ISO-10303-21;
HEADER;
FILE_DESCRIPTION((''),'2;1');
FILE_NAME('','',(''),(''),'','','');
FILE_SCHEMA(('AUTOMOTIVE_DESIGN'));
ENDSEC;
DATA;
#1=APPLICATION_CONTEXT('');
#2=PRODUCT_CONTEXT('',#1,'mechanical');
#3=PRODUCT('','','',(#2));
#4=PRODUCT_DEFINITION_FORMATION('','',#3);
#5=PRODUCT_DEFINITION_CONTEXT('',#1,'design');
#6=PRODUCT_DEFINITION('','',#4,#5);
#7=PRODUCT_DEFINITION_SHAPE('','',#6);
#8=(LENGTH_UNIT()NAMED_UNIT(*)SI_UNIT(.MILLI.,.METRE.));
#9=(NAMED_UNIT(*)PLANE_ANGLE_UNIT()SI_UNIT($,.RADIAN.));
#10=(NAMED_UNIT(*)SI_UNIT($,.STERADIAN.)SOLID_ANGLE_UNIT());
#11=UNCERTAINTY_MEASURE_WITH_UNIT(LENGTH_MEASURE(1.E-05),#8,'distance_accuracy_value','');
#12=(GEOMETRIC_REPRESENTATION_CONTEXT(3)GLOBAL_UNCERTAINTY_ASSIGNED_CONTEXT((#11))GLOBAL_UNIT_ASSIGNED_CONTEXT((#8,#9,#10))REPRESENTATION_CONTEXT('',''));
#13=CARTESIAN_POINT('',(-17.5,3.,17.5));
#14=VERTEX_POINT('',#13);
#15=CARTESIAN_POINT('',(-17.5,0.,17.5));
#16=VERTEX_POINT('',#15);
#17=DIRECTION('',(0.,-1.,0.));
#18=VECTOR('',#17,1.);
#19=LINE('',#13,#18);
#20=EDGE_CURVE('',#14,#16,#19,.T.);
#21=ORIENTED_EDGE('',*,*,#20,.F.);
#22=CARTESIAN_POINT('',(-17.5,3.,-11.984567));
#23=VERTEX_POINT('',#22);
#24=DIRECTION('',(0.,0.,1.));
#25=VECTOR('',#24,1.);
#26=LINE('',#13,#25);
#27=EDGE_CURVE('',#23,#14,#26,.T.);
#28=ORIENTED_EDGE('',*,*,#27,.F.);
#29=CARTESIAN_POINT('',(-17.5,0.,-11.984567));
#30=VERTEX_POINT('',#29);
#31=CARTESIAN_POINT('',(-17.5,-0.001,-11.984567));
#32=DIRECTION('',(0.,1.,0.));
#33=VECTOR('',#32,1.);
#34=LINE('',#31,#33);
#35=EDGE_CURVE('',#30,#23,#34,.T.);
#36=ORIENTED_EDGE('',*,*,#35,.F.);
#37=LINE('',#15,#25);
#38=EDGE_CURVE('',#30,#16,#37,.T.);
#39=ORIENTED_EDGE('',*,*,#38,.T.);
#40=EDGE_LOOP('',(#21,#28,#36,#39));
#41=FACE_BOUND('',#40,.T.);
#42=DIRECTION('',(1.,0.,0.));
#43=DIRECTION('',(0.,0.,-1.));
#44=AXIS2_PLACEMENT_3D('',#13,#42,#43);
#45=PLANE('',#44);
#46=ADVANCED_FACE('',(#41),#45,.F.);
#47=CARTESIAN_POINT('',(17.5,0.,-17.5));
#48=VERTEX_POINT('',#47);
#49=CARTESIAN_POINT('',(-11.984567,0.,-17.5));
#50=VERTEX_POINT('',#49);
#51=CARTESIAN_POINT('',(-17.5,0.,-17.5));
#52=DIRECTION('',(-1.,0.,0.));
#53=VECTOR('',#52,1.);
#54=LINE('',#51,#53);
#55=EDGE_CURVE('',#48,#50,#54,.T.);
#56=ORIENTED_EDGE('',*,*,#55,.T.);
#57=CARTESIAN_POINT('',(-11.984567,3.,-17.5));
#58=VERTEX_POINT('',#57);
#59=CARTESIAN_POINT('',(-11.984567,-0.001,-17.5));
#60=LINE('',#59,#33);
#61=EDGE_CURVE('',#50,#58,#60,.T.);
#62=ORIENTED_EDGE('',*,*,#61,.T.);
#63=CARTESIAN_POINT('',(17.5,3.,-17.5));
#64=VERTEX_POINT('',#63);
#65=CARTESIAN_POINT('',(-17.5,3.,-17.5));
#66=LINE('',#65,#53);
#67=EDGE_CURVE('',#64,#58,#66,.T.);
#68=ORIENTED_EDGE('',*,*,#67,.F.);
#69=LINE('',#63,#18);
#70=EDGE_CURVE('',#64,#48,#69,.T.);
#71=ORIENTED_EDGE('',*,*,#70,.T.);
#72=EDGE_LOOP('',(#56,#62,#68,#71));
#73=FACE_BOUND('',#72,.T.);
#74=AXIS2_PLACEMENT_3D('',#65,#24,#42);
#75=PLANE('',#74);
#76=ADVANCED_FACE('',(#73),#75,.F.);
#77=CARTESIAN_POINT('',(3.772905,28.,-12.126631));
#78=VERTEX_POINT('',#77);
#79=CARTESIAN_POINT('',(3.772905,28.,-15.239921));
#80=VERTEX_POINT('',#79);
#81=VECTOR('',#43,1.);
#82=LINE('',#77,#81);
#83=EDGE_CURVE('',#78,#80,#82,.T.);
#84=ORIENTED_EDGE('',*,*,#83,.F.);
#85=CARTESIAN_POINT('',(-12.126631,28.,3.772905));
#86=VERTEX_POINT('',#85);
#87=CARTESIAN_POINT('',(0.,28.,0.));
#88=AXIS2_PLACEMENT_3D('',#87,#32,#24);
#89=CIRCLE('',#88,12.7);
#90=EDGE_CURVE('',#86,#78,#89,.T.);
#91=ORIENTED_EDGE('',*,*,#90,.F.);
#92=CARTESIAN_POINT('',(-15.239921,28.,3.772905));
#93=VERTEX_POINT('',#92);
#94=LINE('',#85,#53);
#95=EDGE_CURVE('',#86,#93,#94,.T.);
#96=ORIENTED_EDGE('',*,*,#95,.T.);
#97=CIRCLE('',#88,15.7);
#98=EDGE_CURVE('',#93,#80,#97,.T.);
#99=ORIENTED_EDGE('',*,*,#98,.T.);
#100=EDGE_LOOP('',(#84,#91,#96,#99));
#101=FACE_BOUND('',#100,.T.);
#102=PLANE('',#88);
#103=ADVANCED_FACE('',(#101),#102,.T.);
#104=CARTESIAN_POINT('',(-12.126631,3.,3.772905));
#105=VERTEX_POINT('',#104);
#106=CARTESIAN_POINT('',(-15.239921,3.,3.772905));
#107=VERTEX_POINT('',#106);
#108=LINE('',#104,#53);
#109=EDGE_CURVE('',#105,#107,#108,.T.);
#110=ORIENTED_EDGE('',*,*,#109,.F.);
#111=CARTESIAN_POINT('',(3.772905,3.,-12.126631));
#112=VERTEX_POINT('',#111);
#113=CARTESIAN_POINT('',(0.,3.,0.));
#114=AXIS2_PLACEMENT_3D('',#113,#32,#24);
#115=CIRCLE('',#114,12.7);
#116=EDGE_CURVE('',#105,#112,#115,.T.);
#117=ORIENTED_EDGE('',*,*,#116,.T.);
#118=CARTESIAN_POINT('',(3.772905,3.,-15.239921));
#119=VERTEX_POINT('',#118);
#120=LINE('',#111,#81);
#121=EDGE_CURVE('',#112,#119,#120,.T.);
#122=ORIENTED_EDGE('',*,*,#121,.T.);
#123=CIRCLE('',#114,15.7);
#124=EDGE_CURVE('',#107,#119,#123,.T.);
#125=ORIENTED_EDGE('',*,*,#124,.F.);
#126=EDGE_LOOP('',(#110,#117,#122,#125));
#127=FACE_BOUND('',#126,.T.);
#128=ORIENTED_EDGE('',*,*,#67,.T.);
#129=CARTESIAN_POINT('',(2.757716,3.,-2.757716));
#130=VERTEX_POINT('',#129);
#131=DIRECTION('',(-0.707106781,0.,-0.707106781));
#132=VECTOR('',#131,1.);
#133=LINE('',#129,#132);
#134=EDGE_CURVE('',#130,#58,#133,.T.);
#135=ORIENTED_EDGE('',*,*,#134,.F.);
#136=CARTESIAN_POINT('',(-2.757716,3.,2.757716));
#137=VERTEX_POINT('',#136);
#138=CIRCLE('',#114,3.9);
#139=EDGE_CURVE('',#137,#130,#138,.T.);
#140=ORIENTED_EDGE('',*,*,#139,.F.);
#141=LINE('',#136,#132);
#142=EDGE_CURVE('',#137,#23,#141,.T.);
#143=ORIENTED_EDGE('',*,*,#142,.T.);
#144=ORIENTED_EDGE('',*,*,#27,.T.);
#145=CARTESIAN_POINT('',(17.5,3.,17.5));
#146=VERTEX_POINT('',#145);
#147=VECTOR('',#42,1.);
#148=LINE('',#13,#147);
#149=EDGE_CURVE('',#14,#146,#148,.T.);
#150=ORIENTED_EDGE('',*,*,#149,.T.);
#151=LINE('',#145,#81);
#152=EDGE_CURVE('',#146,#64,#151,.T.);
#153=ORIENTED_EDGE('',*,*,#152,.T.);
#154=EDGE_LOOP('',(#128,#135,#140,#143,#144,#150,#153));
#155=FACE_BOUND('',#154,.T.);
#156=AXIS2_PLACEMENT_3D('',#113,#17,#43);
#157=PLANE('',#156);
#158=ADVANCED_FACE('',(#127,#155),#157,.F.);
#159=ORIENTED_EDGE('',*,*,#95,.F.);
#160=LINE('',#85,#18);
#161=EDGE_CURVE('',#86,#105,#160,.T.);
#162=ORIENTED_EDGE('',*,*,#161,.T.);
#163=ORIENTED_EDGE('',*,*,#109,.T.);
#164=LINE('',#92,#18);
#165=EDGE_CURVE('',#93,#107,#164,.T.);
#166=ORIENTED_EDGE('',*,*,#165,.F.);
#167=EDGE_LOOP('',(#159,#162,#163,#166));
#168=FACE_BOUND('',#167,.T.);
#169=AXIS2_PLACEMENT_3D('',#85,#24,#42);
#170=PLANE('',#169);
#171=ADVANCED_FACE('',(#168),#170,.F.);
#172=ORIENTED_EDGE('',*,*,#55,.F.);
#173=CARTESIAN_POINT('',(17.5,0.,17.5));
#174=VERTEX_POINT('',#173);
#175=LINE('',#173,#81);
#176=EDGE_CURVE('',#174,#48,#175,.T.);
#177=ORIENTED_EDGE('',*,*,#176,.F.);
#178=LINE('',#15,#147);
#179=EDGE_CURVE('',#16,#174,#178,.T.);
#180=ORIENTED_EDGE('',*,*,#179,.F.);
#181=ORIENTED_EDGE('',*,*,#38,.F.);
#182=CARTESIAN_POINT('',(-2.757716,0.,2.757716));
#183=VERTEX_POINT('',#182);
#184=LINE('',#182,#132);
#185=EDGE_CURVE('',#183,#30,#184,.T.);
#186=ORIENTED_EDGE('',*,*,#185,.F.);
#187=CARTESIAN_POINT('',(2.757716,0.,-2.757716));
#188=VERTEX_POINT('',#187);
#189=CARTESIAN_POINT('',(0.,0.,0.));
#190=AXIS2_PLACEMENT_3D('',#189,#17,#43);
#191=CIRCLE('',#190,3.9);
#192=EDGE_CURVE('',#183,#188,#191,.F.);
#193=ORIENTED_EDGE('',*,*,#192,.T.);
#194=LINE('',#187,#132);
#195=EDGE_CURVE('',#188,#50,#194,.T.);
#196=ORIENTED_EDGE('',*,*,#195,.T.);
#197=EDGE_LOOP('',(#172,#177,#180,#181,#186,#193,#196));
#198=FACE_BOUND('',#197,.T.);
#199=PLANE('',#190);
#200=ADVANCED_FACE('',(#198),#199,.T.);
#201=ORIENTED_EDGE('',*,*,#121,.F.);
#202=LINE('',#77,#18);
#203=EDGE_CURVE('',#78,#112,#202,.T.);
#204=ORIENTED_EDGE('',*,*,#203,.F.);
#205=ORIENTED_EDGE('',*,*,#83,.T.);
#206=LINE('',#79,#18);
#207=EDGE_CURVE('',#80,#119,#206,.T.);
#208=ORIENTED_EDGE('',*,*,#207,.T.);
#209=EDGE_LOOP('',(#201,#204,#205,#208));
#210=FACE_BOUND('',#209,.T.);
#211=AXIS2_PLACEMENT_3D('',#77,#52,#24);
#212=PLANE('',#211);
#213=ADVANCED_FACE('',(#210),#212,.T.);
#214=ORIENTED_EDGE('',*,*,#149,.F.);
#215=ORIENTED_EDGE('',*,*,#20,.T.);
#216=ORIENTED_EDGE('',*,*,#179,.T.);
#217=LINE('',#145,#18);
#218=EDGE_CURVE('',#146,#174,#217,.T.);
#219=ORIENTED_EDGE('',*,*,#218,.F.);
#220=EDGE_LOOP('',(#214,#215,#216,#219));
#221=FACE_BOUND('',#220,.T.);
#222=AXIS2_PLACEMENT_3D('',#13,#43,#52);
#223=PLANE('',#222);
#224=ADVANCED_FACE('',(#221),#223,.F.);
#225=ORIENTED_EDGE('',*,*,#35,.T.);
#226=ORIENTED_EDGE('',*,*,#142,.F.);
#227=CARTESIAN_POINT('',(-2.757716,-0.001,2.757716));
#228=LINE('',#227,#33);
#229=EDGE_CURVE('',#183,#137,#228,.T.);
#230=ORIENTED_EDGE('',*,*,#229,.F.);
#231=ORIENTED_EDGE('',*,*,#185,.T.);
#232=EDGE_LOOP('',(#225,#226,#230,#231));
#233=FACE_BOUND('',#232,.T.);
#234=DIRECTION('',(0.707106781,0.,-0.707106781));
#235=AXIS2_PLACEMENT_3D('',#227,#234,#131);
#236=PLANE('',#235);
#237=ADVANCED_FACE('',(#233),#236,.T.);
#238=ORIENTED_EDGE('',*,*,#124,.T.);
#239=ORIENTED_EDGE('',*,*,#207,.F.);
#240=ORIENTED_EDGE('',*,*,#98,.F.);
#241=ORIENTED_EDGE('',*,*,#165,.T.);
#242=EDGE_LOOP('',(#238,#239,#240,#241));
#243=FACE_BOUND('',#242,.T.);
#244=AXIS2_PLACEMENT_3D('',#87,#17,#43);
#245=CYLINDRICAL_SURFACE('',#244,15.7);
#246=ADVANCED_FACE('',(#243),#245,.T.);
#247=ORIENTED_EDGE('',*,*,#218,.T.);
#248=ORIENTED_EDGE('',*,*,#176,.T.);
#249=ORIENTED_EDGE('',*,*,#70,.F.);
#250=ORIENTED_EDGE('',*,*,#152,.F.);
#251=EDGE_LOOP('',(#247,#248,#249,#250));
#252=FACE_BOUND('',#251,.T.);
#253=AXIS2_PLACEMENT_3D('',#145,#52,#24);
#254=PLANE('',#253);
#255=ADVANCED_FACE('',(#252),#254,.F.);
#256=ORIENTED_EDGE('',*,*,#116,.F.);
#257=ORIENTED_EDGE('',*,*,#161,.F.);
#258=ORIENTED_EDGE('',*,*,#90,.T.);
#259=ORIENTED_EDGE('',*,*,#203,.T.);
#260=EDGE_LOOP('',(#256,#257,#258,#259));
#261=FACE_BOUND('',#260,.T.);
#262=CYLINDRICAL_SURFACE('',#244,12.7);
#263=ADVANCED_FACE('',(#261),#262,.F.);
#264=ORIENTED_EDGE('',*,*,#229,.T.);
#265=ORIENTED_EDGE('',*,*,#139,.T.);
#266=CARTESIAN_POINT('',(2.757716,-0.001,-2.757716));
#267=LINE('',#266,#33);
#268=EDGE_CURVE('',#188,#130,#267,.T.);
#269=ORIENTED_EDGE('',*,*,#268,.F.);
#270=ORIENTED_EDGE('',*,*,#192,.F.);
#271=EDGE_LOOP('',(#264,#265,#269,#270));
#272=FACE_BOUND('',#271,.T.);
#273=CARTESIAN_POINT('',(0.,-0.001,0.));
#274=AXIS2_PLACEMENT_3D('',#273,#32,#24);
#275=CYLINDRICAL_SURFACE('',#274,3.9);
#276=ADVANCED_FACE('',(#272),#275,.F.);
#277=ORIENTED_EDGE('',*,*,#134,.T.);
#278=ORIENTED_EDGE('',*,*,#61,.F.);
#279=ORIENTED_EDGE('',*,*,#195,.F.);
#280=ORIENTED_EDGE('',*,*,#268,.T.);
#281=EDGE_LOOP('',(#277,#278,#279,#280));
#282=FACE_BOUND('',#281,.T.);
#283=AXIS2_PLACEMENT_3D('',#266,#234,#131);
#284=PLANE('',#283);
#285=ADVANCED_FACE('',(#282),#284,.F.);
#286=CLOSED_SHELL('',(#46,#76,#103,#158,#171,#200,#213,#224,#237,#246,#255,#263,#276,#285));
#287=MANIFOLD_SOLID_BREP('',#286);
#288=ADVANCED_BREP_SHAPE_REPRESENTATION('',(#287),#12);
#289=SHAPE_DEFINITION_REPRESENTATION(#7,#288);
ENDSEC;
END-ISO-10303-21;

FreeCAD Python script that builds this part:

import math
import FreeCAD as App
import Part
import Sketcher
from FreeCAD import Vector

doc = App.newDocument("Part")
body = doc.addObject("PartDesign::Body", "Body")

# Sketch on XZ plane
sketch1 = body.newObject("Sketcher::SketchObject", "Sketch")
sketch1.AttachmentSupport = (doc.getObject("XZ_Plane"), [""])
sketch1.MapMode = "FlatFace"
sketch1.addGeometry(Part.LineSegment(Vector(-17.5, -17.5, 0), Vector(-17.5, 17.5, 0)), False)
sketch1.addGeometry(Part.LineSegment(Vector(-17.5, 17.5, 0), Vector(17.5, 17.5, 0)), False)
sketch1.addGeometry(Part.LineSegment(Vector(17.5, 17.5, 0), Vector(17.5, -17.5, 0)), False)
sketch1.addGeometry(Part.LineSegment(Vector(17.5, -17.5, 0), Vector(-17.5, -17.5, 0)), False)
sketch1.addConstraint(Sketcher.Constraint("Coincident", 0, 2, 1, 1))
sketch1.addConstraint(Sketcher.Constraint("Coincident", 1, 2, 2, 1))
sketch1.addConstraint(Sketcher.Constraint("Coincident", 2, 2, 3, 1))
sketch1.addConstraint(Sketcher.Constraint("Coincident", 3, 2, 0, 1))
sketch1.addConstraint(Sketcher.Constraint("Vertical", 0))
sketch1.addConstraint(Sketcher.Constraint("Horizontal", 1))
sketch1.addConstraint(Sketcher.Constraint("Vertical", 2))
sketch1.addConstraint(Sketcher.Constraint("Horizontal", 3))
sketch1.addConstraint(Sketcher.Constraint("Symmetric", 0, 2, 2, 2, -1, 1))
sketch1.addConstraint(Sketcher.Constraint("Equal", 3, 0))
sketch1.addConstraint(Sketcher.Constraint("DistanceX", 1, 1, 1, 2, 35.0))
pad1 = body.newObject("PartDesign::Pad", "Pad")
pad1.Profile = sketch1
pad1.Length = 3
pad1.Reversed = True

# Sketch on XZ plane
sketch2 = body.newObject("Sketcher::SketchObject", "Sketch001")
sketch2.AttachmentSupport = (doc.getObject("XZ_Plane"), [""])
sketch2.MapMode = "FlatFace"
sketch2.AttachmentOffset = App.Placement(Vector(0, 0, -3), App.Rotation())
sketch2.addGeometry(Part.LineSegment(Vector(3.772905, -15.239921, 0), Vector(3.772905, -12.126631, 0)), False)
sketch2.addGeometry(Part.ArcOfCircle(Part.Circle(Vector(0, 0, 0), Vector(0, 0, 1), 12.7), math.radians(-72.717748), math.radians(162.717748)), False)
sketch2.addGeometry(Part.LineSegment(Vector(-12.126631, 3.772905, 0), Vector(-15.239921, 3.772905, 0)), False)
sketch2.addGeometry(Part.ArcOfCircle(Part.Circle(Vector(0, 0, 0), Vector(0, 0, 1), 15.7), math.radians(-76.09502), math.radians(166.09502)), False)
sketch2.addConstraint(Sketcher.Constraint("Coincident", 0, 2, 1, 1))
sketch2.addConstraint(Sketcher.Constraint("Coincident", 1, 2, 2, 1))
sketch2.addConstraint(Sketcher.Constraint("Coincident", 2, 2, 3, 2))
sketch2.addConstraint(Sketcher.Constraint("Coincident", 3, 1, 0, 1))
sketch2.addConstraint(Sketcher.Constraint("Vertical", 0))
sketch2.addConstraint(Sketcher.Constraint("Horizontal", 2))
sketch2.addConstraint(Sketcher.Constraint("Coincident", 1, 3, -1, 1))
sketch2.addConstraint(Sketcher.Constraint("Coincident", 3, 3, -1, 1))
sketch2.addConstraint(Sketcher.Constraint("Equal", 2, 0))
sketch2.addConstraint(Sketcher.Constraint("Radius", 1, 12.7))
sketch2.addConstraint(Sketcher.Constraint("Radius", 3, 15.7))
sketch2.addConstraint(Sketcher.Constraint("DistanceX", 2, 2, 2, 1, 3.113289))
pad2 = body.newObject("PartDesign::Pad", "Pad001")
pad2.Profile = sketch2
pad2.Length = 25
pad2.Reversed = True

# Sketch on XZ plane
sketch3 = body.newObject("Sketcher::SketchObject", "Sketch002")
sketch3.AttachmentSupport = (doc.getObject("XZ_Plane"), [""])
sketch3.MapMode = "FlatFace"
sketch3.AttachmentOffset = App.Placement(Vector(0, 0, -3), App.Rotation())
sketch3.addGeometry(Part.LineSegment(Vector(2.757716, -2.757716, 0), Vector(-11.984567, -17.5, 0)), False)
sketch3.addGeometry(Part.LineSegment(Vector(-11.984567, -17.5, 0), Vector(-17.5, -17.5, 0)), False)
sketch3.addGeometry(Part.LineSegment(Vector(-17.5, -17.5, 0), Vector(-17.5, -11.984567, 0)), False)
sketch3.addGeometry(Part.LineSegment(Vector(-17.5, -11.984567, 0), Vector(-2.757716, 2.757716, 0)), False)
sketch3.addGeometry(Part.ArcOfCircle(Part.Circle(Vector(0, 0, 0), Vector(0, 0, 1), 3.9), math.radians(-45), math.radians(135)), False)
sketch3.addConstraint(Sketcher.Constraint("Coincident", 0, 2, 1, 1))
sketch3.addConstraint(Sketcher.Constraint("Coincident", 1, 2, 2, 1))
sketch3.addConstraint(Sketcher.Constraint("Coincident", 2, 2, 3, 1))
sketch3.addConstraint(Sketcher.Constraint("Tangent", 3, 2, 4, 2))
sketch3.addConstraint(Sketcher.Constraint("Tangent", 4, 1, 0, 1))
sketch3.addConstraint(Sketcher.Constraint("Horizontal", 1))
sketch3.addConstraint(Sketcher.Constraint("Vertical", 2))
sketch3.addConstraint(Sketcher.Constraint("Coincident", 4, 3, -1, 1))
sketch3.addConstraint(Sketcher.Constraint("Parallel", 0, 3))
sketch3.addConstraint(Sketcher.Constraint("Equal", 1, 2))
sketch3.addConstraint(Sketcher.Constraint("Equal", 0, 3))
sketch3.addConstraint(Sketcher.Constraint("Radius", 4, 3.9))
sketch3.addConstraint(Sketcher.Constraint("DistanceY", 0, 2, -1, 1, 17.5))
pocket1 = body.newObject("PartDesign::Pocket", "Pocket")
pocket1.Profile = sketch3
pocket1.Type = "UpToFirst"
pocket1.Reversed = True

doc.recompute()
